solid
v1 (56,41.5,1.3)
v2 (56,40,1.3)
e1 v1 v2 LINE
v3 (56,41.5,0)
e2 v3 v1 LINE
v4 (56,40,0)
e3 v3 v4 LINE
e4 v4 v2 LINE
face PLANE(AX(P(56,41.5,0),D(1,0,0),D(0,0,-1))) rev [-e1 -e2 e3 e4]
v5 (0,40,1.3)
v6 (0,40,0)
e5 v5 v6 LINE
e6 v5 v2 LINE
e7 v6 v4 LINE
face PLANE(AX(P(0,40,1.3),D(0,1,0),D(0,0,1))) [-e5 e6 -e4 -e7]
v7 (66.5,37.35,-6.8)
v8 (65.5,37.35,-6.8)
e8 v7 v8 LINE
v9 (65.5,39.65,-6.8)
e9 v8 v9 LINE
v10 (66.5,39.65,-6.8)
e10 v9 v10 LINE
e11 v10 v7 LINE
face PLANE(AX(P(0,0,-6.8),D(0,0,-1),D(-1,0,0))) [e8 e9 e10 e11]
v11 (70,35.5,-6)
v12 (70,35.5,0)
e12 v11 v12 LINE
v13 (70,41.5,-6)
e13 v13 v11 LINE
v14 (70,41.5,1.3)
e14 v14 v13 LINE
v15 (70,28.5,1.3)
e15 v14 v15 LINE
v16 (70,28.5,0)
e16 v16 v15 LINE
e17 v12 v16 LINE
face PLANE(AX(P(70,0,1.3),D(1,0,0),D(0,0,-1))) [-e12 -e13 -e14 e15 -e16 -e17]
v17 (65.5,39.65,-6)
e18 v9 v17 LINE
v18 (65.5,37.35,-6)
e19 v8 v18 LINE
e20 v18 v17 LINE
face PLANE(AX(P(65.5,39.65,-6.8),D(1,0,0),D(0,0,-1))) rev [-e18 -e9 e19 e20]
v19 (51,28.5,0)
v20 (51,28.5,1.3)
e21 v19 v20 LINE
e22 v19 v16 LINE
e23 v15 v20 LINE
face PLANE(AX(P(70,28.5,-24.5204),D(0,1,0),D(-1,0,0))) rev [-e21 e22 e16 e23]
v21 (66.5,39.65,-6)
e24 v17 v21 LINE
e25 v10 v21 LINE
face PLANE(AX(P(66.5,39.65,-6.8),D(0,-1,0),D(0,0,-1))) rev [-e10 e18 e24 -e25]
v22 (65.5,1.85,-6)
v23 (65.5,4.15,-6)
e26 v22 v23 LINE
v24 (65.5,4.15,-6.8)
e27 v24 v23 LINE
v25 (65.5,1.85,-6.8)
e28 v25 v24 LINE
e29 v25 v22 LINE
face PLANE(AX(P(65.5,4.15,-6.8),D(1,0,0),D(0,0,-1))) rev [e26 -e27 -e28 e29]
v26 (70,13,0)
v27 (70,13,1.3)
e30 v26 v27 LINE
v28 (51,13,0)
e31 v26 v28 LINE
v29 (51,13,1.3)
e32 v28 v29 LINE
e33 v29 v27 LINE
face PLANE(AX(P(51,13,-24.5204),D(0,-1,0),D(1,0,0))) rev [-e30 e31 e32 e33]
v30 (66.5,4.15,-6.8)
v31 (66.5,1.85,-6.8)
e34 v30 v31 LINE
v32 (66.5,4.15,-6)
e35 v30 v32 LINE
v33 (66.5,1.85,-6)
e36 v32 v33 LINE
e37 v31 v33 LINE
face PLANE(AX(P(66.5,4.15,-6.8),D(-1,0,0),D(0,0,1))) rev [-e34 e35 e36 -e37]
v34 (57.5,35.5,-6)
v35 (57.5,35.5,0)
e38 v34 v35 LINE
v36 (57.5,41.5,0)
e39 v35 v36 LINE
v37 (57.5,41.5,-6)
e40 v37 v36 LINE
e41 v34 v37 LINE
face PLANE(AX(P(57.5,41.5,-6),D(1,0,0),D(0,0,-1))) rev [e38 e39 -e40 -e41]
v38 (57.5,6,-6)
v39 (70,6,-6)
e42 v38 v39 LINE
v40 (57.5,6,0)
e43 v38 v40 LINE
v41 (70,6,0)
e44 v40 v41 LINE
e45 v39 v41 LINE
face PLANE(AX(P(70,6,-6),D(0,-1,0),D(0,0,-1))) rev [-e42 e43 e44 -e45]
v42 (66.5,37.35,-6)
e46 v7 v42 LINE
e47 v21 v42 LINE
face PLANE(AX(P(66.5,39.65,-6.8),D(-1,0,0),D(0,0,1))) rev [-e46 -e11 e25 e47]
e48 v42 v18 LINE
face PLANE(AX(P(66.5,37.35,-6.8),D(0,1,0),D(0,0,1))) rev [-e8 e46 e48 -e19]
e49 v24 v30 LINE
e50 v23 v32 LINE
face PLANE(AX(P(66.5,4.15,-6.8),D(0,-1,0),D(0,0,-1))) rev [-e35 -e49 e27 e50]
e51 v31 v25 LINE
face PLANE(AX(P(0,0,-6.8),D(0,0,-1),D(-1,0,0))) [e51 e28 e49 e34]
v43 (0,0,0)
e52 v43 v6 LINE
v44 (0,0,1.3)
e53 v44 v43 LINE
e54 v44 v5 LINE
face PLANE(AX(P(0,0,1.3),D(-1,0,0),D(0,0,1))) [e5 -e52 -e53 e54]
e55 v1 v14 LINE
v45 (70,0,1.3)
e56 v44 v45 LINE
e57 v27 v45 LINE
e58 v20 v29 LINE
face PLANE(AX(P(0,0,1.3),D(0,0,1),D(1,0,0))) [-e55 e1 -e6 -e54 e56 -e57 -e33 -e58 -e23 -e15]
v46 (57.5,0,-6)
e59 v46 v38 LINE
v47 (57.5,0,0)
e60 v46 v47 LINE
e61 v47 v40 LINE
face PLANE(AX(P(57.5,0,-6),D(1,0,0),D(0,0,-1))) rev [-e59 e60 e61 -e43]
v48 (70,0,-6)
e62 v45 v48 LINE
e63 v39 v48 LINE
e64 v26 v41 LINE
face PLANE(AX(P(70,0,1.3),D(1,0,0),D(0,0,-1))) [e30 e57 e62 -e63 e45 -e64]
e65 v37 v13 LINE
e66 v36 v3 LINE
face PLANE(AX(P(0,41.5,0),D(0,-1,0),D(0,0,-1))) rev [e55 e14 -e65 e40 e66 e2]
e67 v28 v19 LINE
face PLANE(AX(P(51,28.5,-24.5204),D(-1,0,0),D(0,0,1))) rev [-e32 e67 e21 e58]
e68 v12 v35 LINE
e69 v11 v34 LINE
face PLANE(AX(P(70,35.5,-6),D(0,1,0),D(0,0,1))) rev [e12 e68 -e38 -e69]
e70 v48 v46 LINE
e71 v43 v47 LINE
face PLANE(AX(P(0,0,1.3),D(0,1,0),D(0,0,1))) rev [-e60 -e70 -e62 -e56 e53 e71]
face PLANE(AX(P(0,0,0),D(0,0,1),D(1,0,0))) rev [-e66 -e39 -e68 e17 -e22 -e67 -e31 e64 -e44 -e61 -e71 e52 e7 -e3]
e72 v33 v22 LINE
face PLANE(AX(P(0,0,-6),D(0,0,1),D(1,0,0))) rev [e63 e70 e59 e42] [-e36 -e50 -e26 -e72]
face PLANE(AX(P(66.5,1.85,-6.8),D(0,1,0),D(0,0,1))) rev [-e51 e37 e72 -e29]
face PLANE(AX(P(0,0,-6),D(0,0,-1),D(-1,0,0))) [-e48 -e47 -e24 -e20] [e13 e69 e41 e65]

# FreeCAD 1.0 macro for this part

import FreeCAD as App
import Part
import Sketcher


def add_polygon(sketch, points):
    """Adds a closed chain of lines whose ends are joined by coincident constraints."""
    first, n = sketch.GeometryCount, len(points)
    for a, b in zip(points, points[1:] + points[:1]):
        sketch.addGeometry(Part.LineSegment(App.Vector(*a, 0), App.Vector(*b, 0)), False)
    for i in range(n):
        sketch.addConstraint(Sketcher.Constraint("Coincident", first + i, 2, first + (i + 1) % n, 1))

doc = App.newDocument("Part")
body = doc.addObject("PartDesign::Body", "Body")

# Sketch on XY plane
sketch1 = body.newObject("Sketcher::SketchObject", "Sketch")
sketch1.AttachmentSupport = (doc.getObject("XY_Plane"), [""])
sketch1.MapMode = "FlatFace"
add_polygon(sketch1, [(0, 40), (0, 0), (70, 0), (70, 40)])  # lines 0-3
sketch1.addConstraint(Sketcher.Constraint("Vertical", 0))
sketch1.addConstraint(Sketcher.Constraint("Horizontal", 1))
sketch1.addConstraint(Sketcher.Constraint("Vertical", 2))
sketch1.addConstraint(Sketcher.Constraint("Horizontal", 3))
sketch1.addConstraint(Sketcher.Constraint("Coincident", 0, 2, -1, 1))
sketch1.addConstraint(Sketcher.Constraint("DistanceX", 1, 1, 1, 2, 70.0))
sketch1.addConstraint(Sketcher.Constraint("DistanceY", 0, 2, 0, 1, 40.0))
pad1 = body.newObject("PartDesign::Pad", "Pad")
pad1.Profile = sketch1
pad1.Length = 1.3

# Sketch on XZ plane
sketch2 = body.newObject("Sketcher::SketchObject", "Sketch001")
sketch2.AttachmentSupport = (doc.getObject("XZ_Plane"), [""])
sketch2.MapMode = "FlatFace"
sketch2.AttachmentOffset = App.Placement(App.Vector(0, 0, -40), App.Rotation())
add_polygon(sketch2, [(56, 0), (56, 1.3), (70, 1.3), (70, 0)])  # lines 0-3
sketch2.addConstraint(Sketcher.Constraint("Vertical", 0))
sketch2.addConstraint(Sketcher.Constraint("Horizontal", 1))
sketch2.addConstraint(Sketcher.Constraint("Vertical", 2))
sketch2.addConstraint(Sketcher.Constraint("Horizontal", 3))
sketch2.addConstraint(Sketcher.Constraint("PointOnObject", 2, 2, -1))
sketch2.addConstraint(Sketcher.Constraint("DistanceX", 1, 1, 1, 2, 14.0))
sketch2.addConstraint(Sketcher.Constraint("DistanceY", 0, 1, 0, 2, 1.3))
sketch2.addConstraint(Sketcher.Constraint("DistanceX", -1, 1, 0, 2, 56.0))
pad2 = body.newObject("PartDesign::Pad", "Pad001")
pad2.Profile = sketch2
pad2.Length = 1.5
pad2.Reversed = True

# Sketch on XY plane
sketch3 = body.newObject("Sketcher::SketchObject", "Sketch002")
sketch3.AttachmentSupport = (doc.getObject("XY_Plane"), [""])
sketch3.MapMode = "FlatFace"
add_polygon(sketch3, [(70, 42), (70, 36), (58, 36), (58, 42)])  # lines 0-3
add_polygon(sketch3, [(70, 6), (70, 0), (58, 0), (58, 6)])  # lines 4-7
sketch3.addConstraint(Sketcher.Constraint("Vertical", 0))
sketch3.addConstraint(Sketcher.Constraint("Horizontal", 1))
sketch3.addConstraint(Sketcher.Constraint("Vertical", 2))
sketch3.addConstraint(Sketcher.Constraint("Horizontal", 3))
sketch3.addConstraint(Sketcher.Constraint("Vertical", 4))
sketch3.addConstraint(Sketcher.Constraint("Horizontal", 5))
sketch3.addConstraint(Sketcher.Constraint("Vertical", 6))
sketch3.addConstraint(Sketcher.Constraint("Horizontal", 7))
sketch3.addConstraint(Sketcher.Constraint("PointOnObject", 4, 2, -1))
sketch3.addConstraint(Sketcher.Constraint("Vertical", 3, 2, 4, 2))
sketch3.addConstraint(Sketcher.Constraint("Vertical", 2, 2, 5, 2))
sketch3.addConstraint(Sketcher.Constraint("Equal", 2, 4))
sketch3.addConstraint(Sketcher.Constraint("DistanceY", 0, 2, 0, 1, 6.0))
sketch3.addConstraint(Sketcher.Constraint("DistanceX", 1, 2, 1, 1, 12.5))
sketch3.addConstraint(Sketcher.Constraint("DistanceX", -1, 1, 0, 2, 70.0))
sketch3.addConstraint(Sketcher.Constraint("DistanceY", -1, 1, 0, 2, 35.5))
pad3 = body.newObject("PartDesign::Pad", "Pad002")
pad3.Profile = sketch3
pad3.Length = 6
pad3.Reversed = True

# Sketch on XY plane
sketch4 = body.newObject("Sketcher::SketchObject", "Sketch003")
sketch4.AttachmentSupport = (doc.getObject("XY_Plane"), [""])
sketch4.MapMode = "FlatFace"
sketch4.AttachmentOffset = App.Placement(App.Vector(0, 0, -6), App.Rotation())
add_polygon(sketch4, [(66.5, 39.6), (66.5, 37.4), (65.5, 37.4), (65.5, 39.6)])  # lines 0-3
add_polygon(sketch4, [(66.5, 4.2), (66.5, 1.9), (65.5, 1.9), (65.5, 4.2)])  # lines 4-7
sketch4.addConstraint(Sketcher.Constraint("Vertical", 0))
sketch4.addConstraint(Sketcher.Constraint("Horizontal", 1))
sketch4.addConstraint(Sketcher.Constraint("Vertical", 2))
sketch4.addConstraint(Sketcher.Constraint("Horizontal", 3))
sketch4.addConstraint(Sketcher.Constraint("Vertical", 4))
sketch4.addConstraint(Sketcher.Constraint("Horizontal", 5))
sketch4.addConstraint(Sketcher.Constraint("Vertical", 6))
sketch4.addConstraint(Sketcher.Constraint("Horizontal", 7))
sketch4.addConstraint(Sketcher.Constraint("Vertical", 3, 2, 4, 2))
sketch4.addConstraint(Sketcher.Constraint("Vertical", 2, 2, 5, 2))
sketch4.addConstraint(Sketcher.Constraint("Equal", 2, 4))
sketch4.addConstraint(Sketcher.Constraint("DistanceX", 1, 2, 1, 1, 1.0))
sketch4.addConstraint(Sketcher.Constraint("DistanceY", 0, 2, 0, 1, 2.3))
sketch4.addConstraint(Sketcher.Constraint("DistanceX", -1, 1, 0, 2, 66.5))
sketch4.addConstraint(Sketcher.Constraint("DistanceY", 4, 2, 0, 2, 35.5))
sketch4.addConstraint(Sketcher.Constraint("DistanceY", -1, 1, 0, 2, 37.35))
pad4 = body.newObject("PartDesign::Pad", "Pad003")
pad4.Profile = sketch4
pad4.Length = 0.8
pad4.Reversed = True

# Sketch on XY plane
sketch5 = body.newObject("Sketcher::SketchObject", "Sketch004")
sketch5.AttachmentSupport = (doc.getObject("XY_Plane"), [""])
sketch5.MapMode = "FlatFace"
sketch5.AttachmentOffset = App.Placement(App.Vector(0, 0, 1.3), App.Rotation())
add_polygon(sketch5, [(51, 28), (51, 13), (70, 13), (70, 28)])  # lines 0-3
sketch5.addConstraint(Sketcher.Constraint("Vertical", 0))
sketch5.addConstraint(Sketcher.Constraint("Horizontal", 1))
sketch5.addConstraint(Sketcher.Constraint("Vertical", 2))
sketch5.addConstraint(Sketcher.Constraint("Horizontal", 3))
sketch5.addConstraint(Sketcher.Constraint("DistanceX", 1, 1, 1, 2, 19.0))
sketch5.addConstraint(Sketcher.Constraint("DistanceY", 0, 2, 0, 1, 15.5))
sketch5.addConstraint(Sketcher.Constraint("DistanceX", -1, 1, 0, 2, 51.0))
sketch5.addConstraint(Sketcher.Constraint("DistanceY", -1, 1, 0, 2, 13.0))
pocket1 = body.newObject("PartDesign::Pocket", "Pocket")
pocket1.Profile = sketch5
pocket1.Length = 1.3

doc.recompute()
